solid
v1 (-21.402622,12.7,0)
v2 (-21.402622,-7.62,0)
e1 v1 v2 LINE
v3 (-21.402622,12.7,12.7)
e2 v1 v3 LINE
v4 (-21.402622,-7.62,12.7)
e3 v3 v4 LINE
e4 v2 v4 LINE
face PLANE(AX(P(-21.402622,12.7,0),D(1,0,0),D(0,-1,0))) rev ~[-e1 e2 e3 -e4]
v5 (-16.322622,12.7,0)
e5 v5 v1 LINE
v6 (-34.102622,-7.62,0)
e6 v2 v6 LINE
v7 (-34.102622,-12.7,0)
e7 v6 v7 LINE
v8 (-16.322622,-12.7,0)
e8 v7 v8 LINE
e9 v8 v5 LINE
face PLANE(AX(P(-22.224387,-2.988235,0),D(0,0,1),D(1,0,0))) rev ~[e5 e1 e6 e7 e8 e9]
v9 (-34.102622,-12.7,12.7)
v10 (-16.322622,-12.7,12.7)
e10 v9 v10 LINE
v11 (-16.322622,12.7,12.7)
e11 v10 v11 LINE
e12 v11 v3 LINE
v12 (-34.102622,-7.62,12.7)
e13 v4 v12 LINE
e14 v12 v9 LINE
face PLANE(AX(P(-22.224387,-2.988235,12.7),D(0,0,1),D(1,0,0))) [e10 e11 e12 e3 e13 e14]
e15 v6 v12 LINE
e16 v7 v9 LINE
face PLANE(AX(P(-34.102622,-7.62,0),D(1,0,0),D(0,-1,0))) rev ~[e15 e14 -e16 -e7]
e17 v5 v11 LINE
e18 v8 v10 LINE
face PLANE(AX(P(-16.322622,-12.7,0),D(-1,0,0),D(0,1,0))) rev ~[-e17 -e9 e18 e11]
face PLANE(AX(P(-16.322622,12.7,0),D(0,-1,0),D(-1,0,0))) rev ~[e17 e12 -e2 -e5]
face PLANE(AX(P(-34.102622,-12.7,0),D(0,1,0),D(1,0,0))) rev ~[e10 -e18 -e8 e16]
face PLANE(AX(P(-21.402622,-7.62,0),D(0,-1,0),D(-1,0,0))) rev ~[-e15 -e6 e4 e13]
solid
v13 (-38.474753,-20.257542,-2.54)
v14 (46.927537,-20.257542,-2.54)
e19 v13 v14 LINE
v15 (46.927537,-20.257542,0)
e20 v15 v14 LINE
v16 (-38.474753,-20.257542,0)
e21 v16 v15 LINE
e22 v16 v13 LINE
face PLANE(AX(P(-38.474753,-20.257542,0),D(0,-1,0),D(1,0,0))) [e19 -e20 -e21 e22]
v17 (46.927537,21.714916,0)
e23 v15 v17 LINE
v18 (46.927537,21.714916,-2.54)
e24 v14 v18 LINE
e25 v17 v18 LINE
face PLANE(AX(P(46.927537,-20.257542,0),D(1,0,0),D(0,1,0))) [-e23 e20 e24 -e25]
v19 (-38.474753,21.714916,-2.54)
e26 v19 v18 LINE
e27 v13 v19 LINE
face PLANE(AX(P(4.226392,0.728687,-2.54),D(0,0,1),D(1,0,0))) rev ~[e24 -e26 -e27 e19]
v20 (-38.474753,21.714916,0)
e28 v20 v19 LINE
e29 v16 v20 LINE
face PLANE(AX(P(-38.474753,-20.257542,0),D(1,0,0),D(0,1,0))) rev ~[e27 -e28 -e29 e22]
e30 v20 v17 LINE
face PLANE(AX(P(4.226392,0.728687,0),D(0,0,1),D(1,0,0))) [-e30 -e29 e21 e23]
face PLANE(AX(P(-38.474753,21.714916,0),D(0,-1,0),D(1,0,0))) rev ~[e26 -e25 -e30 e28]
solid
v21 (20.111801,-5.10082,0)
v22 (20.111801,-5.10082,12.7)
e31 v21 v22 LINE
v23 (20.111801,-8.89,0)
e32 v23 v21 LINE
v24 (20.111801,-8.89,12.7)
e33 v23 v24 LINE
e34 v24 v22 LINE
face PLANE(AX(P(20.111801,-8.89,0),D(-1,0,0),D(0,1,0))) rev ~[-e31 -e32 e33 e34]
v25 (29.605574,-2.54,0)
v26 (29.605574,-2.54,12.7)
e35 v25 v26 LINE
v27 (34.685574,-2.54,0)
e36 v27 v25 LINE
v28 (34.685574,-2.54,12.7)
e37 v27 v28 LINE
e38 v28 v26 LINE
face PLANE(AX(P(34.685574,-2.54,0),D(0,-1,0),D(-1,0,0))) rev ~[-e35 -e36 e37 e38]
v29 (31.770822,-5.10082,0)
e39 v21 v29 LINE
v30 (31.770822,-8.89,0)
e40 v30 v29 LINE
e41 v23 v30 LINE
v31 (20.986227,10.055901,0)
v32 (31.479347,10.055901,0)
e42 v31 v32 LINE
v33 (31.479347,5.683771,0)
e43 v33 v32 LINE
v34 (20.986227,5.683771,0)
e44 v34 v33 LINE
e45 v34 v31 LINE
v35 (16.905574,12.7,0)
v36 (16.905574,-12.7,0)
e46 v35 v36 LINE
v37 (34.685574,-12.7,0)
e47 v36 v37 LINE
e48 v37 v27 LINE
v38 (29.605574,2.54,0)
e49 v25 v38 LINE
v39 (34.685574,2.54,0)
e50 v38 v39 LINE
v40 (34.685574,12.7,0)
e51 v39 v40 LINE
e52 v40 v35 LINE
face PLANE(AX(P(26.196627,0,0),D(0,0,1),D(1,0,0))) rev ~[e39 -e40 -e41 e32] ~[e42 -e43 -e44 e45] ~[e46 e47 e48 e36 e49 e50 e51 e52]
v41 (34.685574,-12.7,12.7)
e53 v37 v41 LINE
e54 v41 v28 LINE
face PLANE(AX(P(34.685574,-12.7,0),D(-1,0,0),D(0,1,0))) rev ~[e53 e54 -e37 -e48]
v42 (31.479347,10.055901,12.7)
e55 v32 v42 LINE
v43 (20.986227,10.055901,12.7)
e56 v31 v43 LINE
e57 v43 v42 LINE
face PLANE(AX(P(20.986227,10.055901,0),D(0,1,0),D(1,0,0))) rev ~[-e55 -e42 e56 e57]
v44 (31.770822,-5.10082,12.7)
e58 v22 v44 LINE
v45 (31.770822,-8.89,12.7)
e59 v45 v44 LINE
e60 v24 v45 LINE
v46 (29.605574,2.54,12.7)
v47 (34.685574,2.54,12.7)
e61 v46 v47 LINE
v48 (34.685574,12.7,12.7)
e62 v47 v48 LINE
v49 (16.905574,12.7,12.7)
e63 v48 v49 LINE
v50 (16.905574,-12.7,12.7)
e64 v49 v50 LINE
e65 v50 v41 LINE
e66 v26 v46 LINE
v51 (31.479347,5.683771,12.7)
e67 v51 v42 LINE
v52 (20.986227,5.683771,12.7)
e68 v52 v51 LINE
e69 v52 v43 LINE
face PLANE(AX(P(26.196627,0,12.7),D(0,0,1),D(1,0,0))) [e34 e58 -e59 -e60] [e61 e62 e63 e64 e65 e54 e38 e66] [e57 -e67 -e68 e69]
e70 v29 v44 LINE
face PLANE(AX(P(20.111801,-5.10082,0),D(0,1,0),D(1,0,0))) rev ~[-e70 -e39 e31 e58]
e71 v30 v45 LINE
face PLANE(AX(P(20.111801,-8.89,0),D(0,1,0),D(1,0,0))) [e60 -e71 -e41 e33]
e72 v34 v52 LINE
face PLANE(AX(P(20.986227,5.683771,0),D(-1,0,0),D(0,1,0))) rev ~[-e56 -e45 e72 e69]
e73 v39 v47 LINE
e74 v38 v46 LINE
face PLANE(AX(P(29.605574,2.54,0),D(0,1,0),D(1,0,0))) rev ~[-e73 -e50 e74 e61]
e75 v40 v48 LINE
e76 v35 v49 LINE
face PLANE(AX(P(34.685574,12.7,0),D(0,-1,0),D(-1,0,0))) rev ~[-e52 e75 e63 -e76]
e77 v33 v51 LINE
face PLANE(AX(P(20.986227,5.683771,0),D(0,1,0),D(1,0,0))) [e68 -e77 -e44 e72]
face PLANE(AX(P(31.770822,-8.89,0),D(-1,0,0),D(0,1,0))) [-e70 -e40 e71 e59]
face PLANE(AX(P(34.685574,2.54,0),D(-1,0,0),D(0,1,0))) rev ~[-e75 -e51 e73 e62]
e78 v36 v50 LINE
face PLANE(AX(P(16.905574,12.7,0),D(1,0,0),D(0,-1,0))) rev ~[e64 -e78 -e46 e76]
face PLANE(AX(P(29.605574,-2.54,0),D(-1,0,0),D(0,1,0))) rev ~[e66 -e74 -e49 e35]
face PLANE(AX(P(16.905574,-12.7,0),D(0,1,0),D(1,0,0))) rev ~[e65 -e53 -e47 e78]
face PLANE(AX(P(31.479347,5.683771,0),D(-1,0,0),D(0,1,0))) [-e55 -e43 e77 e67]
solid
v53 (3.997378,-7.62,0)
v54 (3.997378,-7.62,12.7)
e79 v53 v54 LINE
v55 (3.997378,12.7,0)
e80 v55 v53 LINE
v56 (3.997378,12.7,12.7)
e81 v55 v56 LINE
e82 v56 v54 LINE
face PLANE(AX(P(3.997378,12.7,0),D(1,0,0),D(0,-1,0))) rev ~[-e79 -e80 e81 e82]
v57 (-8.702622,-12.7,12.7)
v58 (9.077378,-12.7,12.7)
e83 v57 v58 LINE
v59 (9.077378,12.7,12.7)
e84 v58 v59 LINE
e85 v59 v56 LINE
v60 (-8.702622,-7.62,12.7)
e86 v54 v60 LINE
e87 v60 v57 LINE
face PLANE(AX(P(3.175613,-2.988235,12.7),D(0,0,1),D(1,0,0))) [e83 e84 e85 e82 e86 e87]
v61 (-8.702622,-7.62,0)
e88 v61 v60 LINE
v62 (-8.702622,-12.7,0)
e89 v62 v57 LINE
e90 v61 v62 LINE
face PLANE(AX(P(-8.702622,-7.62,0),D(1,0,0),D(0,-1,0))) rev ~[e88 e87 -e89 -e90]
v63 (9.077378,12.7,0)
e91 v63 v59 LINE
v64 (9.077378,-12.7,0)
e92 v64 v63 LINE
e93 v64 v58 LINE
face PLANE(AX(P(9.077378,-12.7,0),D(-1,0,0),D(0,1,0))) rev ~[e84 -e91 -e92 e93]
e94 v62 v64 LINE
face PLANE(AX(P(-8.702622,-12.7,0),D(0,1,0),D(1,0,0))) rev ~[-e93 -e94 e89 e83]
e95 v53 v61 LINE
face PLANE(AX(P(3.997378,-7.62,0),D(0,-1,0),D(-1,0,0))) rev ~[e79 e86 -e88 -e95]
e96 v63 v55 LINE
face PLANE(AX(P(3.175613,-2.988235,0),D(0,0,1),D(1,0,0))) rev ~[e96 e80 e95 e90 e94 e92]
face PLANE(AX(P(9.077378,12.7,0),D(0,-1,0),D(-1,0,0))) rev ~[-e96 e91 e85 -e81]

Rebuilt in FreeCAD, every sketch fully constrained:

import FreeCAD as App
import Part
import Sketcher
Q = App.Units.Quantity


def add_polygon(sketch, points):
    """Adds a closed chain of lines whose ends are joined by coincident constraints."""
    first, n = sketch.GeometryCount, len(points)
    for a, b in zip(points, points[1:] + points[:1]):
        sketch.addGeometry(Part.LineSegment(App.Vector(*a, 0), App.Vector(*b, 0)), False)
    for i in range(n):
        sketch.addConstraint(Sketcher.Constraint("Coincident", first + i, 2, first + (i + 1) % n, 1))

doc = App.newDocument("Part")
body = doc.addObject("PartDesign::Body", "Body")
body.AllowCompound = True

# Sketch on XY plane
sketch1 = body.newObject("Sketcher::SketchObject", "Sketch")
sketch1.AttachmentSupport = (doc.getObject("XY_Plane"), [""])
sketch1.MapMode = "FlatFace"
add_polygon(sketch1, [(9.1, -12.7), (9.1, 12.7), (4, 12.7), (4, -7.6), (-8.7, -7.6), (-8.7, -12.7)])  # lines 0-5
add_polygon(sketch1, [(16.9, 12.7), (16.9, -12.7), (34.7, -12.7), (34.7, -2.5), (29.6, -2.5), (29.6, 2.5), (34.7, 2.5), (34.7, 12.7)])  # lines 6-13
add_polygon(sketch1, [(31.8, -8.9), (20.1, -8.9), (20.1, -5.1), (31.8, -5.1)])  # lines 14-17
add_polygon(sketch1, [(31.5, 5.7), (21, 5.7), (21, 10.1), (31.5, 10.1)])  # lines 18-21
add_polygon(sketch1, [(-34.1, -12.7), (-16.3, -12.7), (-16.3, 12.7), (-21.4, 12.7), (-21.4, -7.6), (-34.1, -7.6)])  # lines 22-27
sketch1.addConstraint([
    Sketcher.Constraint("Vertical", 0),
    Sketcher.Constraint("Horizontal", 1),
    Sketcher.Constraint("Vertical", 2),
    Sketcher.Constraint("Horizontal", 3),
    Sketcher.Constraint("Vertical", 4),
    Sketcher.Constraint("Horizontal", 5),
    Sketcher.Constraint("Vertical", 6),
    Sketcher.Constraint("Horizontal", 7),
    Sketcher.Constraint("Vertical", 8),
    Sketcher.Constraint("Horizontal", 9),
    Sketcher.Constraint("Vertical", 10),
    Sketcher.Constraint("Horizontal", 11),
    Sketcher.Constraint("Vertical", 12),
    Sketcher.Constraint("Horizontal", 13),
    Sketcher.Constraint("Horizontal", 14),
    Sketcher.Constraint("Vertical", 15),
    Sketcher.Constraint("Horizontal", 16),
    Sketcher.Constraint("Vertical", 17),
    Sketcher.Constraint("Horizontal", 18),
    Sketcher.Constraint("Vertical", 19),
    Sketcher.Constraint("Horizontal", 20),
    Sketcher.Constraint("Vertical", 21),
    Sketcher.Constraint("Horizontal", 22),
    Sketcher.Constraint("Vertical", 23),
    Sketcher.Constraint("Horizontal", 24),
    Sketcher.Constraint("Vertical", 25),
    Sketcher.Constraint("Horizontal", 26),
    Sketcher.Constraint("Vertical", 27),
    Sketcher.Constraint("Symmetric", 8, 2, 11, 2, -1),
    Sketcher.Constraint("Horizontal", 5, 2, 6, 2),
    Sketcher.Constraint("Horizontal", 1, 2, 12, 2),
    Sketcher.Constraint("Horizontal", 7, 2, 22, 2),
    Sketcher.Constraint("Horizontal", 13, 2, 23, 2),
    Sketcher.Constraint("Horizontal", 3, 2, 25, 2),
    Sketcher.Constraint("Equal", 5, 7),
    Sketcher.Constraint("Equal", 1, 9),
    Sketcher.Constraint("Equal", 13, 22),
    Sketcher.Constraint("Equal", 11, 24),
    Sketcher.Constraint("Equal", 24, 4),
    Sketcher.Constraint("Equal", 4, 10),
    Sketcher.Constraint("Equal", 8, 12),
    Sketcher.Constraint("DistanceY", 0, 1, 0, 2, Q("1 in")),
    Sketcher.Constraint("DistanceX", 1, 2, 1, 1, Q("0.2 in")),
    Sketcher.Constraint("DistanceX", 3, 2, 3, 1, Q("0.5 in")),
    Sketcher.Constraint("DistanceX", 22, 2, 5, 2, Q("1 in")),
    Sketcher.Constraint("DistanceY", 14, 2, -1, 1, Q("0.35 in")),
    Sketcher.Constraint("DistanceX", 14, 2, 14, 1, Q("11.659021 mm")),
    Sketcher.Constraint("DistanceX", 18, 2, 18, 1, Q("10.49312 mm")),
    Sketcher.Constraint("DistanceY", 15, 1, 15, 2, Q("3.78918 mm")),
    Sketcher.Constraint("DistanceY", 19, 1, 19, 2, Q("4.37213 mm")),
    Sketcher.Constraint("DistanceX", -1, 1, 14, 2, Q("20.111801 mm")),
    Sketcher.Constraint("DistanceY", -1, 1, 19, 2, Q("10.055901 mm")),
    Sketcher.Constraint("DistanceX", 22, 2, -1, 1, Q("16.322622 mm")),
    Sketcher.Constraint("DistanceX", 0, 2, 18, 2, Q("11.908849 mm")),
    Sketcher.Constraint("DistanceX", -1, 1, 6, 2, Q("16.905574 mm")),
])
pad1 = body.newObject("PartDesign::Pad", "Pad")
pad1.Profile = sketch1
pad1.Length = Q("0.5 in")
body2 = doc.addObject("PartDesign::Body", "Body001")

# Sketch on XY plane
sketch2 = body2.newObject("Sketcher::SketchObject", "Sketch001")
sketch2.AttachmentSupport = (doc.getObject("XY_Plane001"), [""])
sketch2.MapMode = "FlatFace"
add_polygon(sketch2, [(-38, 22), (-38, -20), (47, -20), (47, 22)])  # lines 0-3
sketch2.addConstraint([
    Sketcher.Constraint("Vertical", 0),
    Sketcher.Constraint("Horizontal", 1),
    Sketcher.Constraint("Vertical", 2),
    Sketcher.Constraint("Horizontal", 3),
    Sketcher.Constraint("DistanceX", 1, 1, 1, 2, Q("85.402291 mm")),
    Sketcher.Constraint("DistanceY", 0, 2, 0, 1, Q("41.972458 mm")),
    Sketcher.Constraint("DistanceX", 0, 2, -1, 1, Q("38.474753 mm")),
    Sketcher.Constraint("DistanceY", 0, 2, -1, 1, Q("20.257542 mm")),
])
pad2 = body2.newObject("PartDesign::Pad", "Pad001")
pad2.Profile = sketch2
pad2.Length = Q("0.1 in")
pad2.Reversed = True

doc.recompute()
